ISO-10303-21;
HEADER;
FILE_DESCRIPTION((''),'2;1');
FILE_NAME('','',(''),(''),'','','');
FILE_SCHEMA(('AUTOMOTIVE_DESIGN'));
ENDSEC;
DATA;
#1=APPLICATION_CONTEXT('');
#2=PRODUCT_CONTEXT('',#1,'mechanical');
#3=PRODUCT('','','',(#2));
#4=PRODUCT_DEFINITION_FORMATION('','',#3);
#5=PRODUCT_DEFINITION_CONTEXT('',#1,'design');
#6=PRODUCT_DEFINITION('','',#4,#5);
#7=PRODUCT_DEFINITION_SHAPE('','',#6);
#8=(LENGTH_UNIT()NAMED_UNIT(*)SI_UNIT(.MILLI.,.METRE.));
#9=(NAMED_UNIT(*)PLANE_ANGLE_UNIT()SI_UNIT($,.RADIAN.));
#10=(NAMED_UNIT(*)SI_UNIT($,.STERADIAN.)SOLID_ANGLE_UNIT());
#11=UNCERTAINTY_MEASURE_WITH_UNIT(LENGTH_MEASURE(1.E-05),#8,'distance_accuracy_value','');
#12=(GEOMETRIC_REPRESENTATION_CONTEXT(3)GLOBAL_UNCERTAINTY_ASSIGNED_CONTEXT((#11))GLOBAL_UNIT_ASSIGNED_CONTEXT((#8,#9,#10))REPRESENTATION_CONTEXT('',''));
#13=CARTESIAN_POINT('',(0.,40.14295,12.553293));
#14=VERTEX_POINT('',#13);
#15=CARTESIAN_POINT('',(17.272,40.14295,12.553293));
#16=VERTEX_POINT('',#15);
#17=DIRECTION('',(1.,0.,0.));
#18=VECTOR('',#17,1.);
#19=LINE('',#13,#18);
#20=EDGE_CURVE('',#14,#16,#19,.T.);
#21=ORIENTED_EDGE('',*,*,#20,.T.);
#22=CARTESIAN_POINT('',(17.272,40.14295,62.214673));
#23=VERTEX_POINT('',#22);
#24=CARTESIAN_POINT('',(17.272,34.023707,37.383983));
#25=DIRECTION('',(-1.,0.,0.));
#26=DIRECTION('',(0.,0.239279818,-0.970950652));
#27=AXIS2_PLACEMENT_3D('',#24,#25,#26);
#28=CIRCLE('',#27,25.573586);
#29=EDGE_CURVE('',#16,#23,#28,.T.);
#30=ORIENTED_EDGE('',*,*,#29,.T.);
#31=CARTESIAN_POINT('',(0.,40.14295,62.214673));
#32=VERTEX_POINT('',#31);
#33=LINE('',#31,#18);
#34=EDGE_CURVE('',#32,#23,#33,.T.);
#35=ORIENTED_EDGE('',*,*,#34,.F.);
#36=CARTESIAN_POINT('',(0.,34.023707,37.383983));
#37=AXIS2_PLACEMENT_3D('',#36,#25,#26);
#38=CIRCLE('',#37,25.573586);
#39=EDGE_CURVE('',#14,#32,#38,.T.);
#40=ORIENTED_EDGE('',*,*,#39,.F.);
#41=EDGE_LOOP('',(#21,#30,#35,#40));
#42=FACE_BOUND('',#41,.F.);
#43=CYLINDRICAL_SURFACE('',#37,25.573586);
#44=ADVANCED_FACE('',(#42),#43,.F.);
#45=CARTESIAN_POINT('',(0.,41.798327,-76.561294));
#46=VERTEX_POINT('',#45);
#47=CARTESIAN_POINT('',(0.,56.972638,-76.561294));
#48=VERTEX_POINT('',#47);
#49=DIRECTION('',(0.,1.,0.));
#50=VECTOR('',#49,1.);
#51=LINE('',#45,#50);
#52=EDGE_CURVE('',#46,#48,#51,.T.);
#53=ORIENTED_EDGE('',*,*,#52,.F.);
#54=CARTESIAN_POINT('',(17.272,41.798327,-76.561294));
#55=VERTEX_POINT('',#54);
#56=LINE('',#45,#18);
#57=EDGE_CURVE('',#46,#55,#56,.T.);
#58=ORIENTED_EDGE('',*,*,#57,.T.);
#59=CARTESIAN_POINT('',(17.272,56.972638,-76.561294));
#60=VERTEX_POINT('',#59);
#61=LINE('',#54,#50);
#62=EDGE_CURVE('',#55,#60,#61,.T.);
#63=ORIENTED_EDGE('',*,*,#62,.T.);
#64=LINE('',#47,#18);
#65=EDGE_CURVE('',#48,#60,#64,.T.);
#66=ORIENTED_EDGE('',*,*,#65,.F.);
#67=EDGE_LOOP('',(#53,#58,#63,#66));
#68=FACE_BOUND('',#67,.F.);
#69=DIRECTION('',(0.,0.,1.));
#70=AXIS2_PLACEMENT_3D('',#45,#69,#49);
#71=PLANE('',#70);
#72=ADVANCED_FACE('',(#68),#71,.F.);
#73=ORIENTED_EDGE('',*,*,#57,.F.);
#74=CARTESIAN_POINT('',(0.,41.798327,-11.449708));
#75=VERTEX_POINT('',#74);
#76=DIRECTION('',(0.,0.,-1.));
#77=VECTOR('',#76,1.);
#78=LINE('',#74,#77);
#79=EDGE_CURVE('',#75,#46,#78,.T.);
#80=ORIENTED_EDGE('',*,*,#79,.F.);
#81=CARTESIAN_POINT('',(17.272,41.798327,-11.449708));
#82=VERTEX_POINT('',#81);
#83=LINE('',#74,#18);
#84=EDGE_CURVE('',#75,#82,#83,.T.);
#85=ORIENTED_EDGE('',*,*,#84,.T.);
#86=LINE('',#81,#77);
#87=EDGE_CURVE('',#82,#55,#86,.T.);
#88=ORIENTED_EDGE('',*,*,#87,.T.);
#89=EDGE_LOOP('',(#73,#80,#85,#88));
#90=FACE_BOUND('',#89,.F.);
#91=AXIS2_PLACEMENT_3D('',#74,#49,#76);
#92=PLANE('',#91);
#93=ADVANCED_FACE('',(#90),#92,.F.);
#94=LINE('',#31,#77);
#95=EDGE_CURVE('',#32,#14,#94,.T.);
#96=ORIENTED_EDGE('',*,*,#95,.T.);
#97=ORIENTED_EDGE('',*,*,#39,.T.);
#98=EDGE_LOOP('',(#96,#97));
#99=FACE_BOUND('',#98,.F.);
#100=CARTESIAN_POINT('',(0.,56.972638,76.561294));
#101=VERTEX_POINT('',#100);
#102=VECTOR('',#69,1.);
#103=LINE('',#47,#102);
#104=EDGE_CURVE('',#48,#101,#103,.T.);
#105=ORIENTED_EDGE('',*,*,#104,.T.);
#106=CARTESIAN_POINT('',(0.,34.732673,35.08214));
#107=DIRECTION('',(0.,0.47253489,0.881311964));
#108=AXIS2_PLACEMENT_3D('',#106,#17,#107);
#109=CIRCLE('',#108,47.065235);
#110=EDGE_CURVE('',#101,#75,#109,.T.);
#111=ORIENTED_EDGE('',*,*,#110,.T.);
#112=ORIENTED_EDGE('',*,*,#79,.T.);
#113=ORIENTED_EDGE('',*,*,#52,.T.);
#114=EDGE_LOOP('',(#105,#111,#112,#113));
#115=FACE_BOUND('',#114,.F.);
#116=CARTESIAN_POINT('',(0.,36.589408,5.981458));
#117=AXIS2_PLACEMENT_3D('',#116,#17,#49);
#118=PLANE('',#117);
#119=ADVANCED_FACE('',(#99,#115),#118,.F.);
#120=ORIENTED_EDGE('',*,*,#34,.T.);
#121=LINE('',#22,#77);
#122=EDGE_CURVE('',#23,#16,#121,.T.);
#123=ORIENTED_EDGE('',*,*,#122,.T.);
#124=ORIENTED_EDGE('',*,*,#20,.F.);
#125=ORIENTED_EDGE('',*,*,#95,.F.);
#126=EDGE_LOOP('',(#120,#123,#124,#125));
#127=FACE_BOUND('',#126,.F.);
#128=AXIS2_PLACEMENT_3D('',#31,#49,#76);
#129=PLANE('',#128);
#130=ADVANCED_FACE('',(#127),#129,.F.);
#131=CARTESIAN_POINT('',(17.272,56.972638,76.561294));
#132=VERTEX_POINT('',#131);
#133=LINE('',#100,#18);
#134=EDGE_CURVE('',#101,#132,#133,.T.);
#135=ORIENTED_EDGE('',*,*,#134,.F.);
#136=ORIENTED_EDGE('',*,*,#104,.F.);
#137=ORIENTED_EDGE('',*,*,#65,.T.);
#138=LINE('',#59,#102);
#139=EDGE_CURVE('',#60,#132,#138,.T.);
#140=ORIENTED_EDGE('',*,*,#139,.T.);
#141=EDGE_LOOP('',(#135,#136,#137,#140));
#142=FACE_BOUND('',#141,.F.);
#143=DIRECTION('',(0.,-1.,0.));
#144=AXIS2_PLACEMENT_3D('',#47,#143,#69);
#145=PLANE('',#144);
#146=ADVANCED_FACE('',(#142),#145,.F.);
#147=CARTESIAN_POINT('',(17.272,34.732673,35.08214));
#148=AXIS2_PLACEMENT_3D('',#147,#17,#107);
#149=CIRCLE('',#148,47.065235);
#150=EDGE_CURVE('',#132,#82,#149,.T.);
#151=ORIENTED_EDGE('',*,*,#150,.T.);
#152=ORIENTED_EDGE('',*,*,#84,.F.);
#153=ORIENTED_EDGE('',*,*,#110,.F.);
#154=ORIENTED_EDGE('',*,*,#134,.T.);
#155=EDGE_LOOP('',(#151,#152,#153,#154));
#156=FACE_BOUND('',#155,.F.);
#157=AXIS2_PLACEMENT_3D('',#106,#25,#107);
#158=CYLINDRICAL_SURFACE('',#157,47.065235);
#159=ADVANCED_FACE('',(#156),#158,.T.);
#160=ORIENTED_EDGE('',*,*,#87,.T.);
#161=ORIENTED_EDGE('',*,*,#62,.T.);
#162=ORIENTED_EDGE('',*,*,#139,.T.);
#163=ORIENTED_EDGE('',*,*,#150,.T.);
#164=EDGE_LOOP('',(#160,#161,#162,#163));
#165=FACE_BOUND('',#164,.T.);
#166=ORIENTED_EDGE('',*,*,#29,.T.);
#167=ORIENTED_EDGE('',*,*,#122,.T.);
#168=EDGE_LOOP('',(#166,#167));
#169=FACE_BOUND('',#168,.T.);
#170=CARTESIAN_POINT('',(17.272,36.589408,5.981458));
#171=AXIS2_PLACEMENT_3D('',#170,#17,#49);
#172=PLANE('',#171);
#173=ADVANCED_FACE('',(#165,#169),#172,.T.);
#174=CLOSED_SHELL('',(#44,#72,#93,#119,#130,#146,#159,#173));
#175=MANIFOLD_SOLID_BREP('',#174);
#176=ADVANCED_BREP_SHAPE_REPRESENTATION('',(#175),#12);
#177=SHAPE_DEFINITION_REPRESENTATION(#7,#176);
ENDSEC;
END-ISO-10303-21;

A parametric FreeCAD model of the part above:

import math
import FreeCAD as App
import Part
import Sketcher

V = App.Vector
Q = App.Units.Quantity

doc = App.newDocument("Part")
body = doc.addObject("PartDesign::Body", "Body")

# Sketch on YZ plane
sketch1 = body.newObject("Sketcher::SketchObject", "Sketch")
sketch1.AttachmentSupport = (doc.getObject("YZ_Plane"), [""])
sketch1.MapMode = "FlatFace"
sketch1.addGeometry([
    Part.LineSegment(V(56.972638, -76.561294, 0), V(56.972638, 76.561294, 0)),  # 0
    Part.ArcOfCircle(Part.Circle(V(34.732673, 35.08214, 0), V(0, 0, 1), 47.065235), math.radians(61.801032), math.radians(278.634153)),  # 1
    Part.LineSegment(V(41.798327, -11.449708, 0), V(41.798327, -76.561294, 0)),  # 2
    Part.LineSegment(V(41.798327, -76.561294, 0), V(56.972638, -76.561294, 0)),  # 3
    Part.LineSegment(V(40.14295, 62.214673, 0), V(40.14295, 12.553293, 0)),  # 4
    Part.ArcOfCircle(Part.Circle(V(34.023707, 37.383983, 0), V(0, 0, 1), 25.573586), math.radians(76.155961), math.radians(283.844039)),  # 5
], False)
sketch1.addConstraint([
    Sketcher.Constraint("Coincident", 0, 2, 1, 1),
    Sketcher.Constraint("Coincident", 1, 2, 2, 1),
    Sketcher.Constraint("Coincident", 2, 2, 3, 1),
    Sketcher.Constraint("Coincident", 3, 2, 0, 1),
    Sketcher.Constraint("Coincident", 4, 1, 5, 1),
    Sketcher.Constraint("Coincident", 5, 2, 4, 2),
    Sketcher.Constraint("Vertical", 0),
    Sketcher.Constraint("Vertical", 2),
    Sketcher.Constraint("Horizontal", 3),
    Sketcher.Constraint("Vertical", 4),
    Sketcher.Constraint("DistanceY", 5, 2, 0, 2, Q("2.52 in")),
    Sketcher.Constraint("DistanceY", 1, 2, 0, 2, Q("3.4650001 in")),
    Sketcher.Constraint("Radius", 1, 47.065235),
    Sketcher.Constraint("Radius", 5, 25.573586),
    Sketcher.Constraint("DistanceX", 3, 1, 3, 2, 15.174311),
    Sketcher.Constraint("DistanceY", 0, 1, 0, 2, 153.122588),
    Sketcher.Constraint("DistanceY", 4, 2, 4, 1, 49.66138),
    Sketcher.Constraint("DistanceY", -1, 1, 1, 3, 35.08214),
    Sketcher.Constraint("DistanceX", -1, 1, 0, 2, 56.972638),
    Sketcher.Constraint("DistanceX", -1, 1, 4, 1, 40.14295),
])
pad1 = body.newObject("PartDesign::Pad", "Pad")
pad1.Profile = sketch1
pad1.Length = Q("0.68 in")

doc.recompute()
